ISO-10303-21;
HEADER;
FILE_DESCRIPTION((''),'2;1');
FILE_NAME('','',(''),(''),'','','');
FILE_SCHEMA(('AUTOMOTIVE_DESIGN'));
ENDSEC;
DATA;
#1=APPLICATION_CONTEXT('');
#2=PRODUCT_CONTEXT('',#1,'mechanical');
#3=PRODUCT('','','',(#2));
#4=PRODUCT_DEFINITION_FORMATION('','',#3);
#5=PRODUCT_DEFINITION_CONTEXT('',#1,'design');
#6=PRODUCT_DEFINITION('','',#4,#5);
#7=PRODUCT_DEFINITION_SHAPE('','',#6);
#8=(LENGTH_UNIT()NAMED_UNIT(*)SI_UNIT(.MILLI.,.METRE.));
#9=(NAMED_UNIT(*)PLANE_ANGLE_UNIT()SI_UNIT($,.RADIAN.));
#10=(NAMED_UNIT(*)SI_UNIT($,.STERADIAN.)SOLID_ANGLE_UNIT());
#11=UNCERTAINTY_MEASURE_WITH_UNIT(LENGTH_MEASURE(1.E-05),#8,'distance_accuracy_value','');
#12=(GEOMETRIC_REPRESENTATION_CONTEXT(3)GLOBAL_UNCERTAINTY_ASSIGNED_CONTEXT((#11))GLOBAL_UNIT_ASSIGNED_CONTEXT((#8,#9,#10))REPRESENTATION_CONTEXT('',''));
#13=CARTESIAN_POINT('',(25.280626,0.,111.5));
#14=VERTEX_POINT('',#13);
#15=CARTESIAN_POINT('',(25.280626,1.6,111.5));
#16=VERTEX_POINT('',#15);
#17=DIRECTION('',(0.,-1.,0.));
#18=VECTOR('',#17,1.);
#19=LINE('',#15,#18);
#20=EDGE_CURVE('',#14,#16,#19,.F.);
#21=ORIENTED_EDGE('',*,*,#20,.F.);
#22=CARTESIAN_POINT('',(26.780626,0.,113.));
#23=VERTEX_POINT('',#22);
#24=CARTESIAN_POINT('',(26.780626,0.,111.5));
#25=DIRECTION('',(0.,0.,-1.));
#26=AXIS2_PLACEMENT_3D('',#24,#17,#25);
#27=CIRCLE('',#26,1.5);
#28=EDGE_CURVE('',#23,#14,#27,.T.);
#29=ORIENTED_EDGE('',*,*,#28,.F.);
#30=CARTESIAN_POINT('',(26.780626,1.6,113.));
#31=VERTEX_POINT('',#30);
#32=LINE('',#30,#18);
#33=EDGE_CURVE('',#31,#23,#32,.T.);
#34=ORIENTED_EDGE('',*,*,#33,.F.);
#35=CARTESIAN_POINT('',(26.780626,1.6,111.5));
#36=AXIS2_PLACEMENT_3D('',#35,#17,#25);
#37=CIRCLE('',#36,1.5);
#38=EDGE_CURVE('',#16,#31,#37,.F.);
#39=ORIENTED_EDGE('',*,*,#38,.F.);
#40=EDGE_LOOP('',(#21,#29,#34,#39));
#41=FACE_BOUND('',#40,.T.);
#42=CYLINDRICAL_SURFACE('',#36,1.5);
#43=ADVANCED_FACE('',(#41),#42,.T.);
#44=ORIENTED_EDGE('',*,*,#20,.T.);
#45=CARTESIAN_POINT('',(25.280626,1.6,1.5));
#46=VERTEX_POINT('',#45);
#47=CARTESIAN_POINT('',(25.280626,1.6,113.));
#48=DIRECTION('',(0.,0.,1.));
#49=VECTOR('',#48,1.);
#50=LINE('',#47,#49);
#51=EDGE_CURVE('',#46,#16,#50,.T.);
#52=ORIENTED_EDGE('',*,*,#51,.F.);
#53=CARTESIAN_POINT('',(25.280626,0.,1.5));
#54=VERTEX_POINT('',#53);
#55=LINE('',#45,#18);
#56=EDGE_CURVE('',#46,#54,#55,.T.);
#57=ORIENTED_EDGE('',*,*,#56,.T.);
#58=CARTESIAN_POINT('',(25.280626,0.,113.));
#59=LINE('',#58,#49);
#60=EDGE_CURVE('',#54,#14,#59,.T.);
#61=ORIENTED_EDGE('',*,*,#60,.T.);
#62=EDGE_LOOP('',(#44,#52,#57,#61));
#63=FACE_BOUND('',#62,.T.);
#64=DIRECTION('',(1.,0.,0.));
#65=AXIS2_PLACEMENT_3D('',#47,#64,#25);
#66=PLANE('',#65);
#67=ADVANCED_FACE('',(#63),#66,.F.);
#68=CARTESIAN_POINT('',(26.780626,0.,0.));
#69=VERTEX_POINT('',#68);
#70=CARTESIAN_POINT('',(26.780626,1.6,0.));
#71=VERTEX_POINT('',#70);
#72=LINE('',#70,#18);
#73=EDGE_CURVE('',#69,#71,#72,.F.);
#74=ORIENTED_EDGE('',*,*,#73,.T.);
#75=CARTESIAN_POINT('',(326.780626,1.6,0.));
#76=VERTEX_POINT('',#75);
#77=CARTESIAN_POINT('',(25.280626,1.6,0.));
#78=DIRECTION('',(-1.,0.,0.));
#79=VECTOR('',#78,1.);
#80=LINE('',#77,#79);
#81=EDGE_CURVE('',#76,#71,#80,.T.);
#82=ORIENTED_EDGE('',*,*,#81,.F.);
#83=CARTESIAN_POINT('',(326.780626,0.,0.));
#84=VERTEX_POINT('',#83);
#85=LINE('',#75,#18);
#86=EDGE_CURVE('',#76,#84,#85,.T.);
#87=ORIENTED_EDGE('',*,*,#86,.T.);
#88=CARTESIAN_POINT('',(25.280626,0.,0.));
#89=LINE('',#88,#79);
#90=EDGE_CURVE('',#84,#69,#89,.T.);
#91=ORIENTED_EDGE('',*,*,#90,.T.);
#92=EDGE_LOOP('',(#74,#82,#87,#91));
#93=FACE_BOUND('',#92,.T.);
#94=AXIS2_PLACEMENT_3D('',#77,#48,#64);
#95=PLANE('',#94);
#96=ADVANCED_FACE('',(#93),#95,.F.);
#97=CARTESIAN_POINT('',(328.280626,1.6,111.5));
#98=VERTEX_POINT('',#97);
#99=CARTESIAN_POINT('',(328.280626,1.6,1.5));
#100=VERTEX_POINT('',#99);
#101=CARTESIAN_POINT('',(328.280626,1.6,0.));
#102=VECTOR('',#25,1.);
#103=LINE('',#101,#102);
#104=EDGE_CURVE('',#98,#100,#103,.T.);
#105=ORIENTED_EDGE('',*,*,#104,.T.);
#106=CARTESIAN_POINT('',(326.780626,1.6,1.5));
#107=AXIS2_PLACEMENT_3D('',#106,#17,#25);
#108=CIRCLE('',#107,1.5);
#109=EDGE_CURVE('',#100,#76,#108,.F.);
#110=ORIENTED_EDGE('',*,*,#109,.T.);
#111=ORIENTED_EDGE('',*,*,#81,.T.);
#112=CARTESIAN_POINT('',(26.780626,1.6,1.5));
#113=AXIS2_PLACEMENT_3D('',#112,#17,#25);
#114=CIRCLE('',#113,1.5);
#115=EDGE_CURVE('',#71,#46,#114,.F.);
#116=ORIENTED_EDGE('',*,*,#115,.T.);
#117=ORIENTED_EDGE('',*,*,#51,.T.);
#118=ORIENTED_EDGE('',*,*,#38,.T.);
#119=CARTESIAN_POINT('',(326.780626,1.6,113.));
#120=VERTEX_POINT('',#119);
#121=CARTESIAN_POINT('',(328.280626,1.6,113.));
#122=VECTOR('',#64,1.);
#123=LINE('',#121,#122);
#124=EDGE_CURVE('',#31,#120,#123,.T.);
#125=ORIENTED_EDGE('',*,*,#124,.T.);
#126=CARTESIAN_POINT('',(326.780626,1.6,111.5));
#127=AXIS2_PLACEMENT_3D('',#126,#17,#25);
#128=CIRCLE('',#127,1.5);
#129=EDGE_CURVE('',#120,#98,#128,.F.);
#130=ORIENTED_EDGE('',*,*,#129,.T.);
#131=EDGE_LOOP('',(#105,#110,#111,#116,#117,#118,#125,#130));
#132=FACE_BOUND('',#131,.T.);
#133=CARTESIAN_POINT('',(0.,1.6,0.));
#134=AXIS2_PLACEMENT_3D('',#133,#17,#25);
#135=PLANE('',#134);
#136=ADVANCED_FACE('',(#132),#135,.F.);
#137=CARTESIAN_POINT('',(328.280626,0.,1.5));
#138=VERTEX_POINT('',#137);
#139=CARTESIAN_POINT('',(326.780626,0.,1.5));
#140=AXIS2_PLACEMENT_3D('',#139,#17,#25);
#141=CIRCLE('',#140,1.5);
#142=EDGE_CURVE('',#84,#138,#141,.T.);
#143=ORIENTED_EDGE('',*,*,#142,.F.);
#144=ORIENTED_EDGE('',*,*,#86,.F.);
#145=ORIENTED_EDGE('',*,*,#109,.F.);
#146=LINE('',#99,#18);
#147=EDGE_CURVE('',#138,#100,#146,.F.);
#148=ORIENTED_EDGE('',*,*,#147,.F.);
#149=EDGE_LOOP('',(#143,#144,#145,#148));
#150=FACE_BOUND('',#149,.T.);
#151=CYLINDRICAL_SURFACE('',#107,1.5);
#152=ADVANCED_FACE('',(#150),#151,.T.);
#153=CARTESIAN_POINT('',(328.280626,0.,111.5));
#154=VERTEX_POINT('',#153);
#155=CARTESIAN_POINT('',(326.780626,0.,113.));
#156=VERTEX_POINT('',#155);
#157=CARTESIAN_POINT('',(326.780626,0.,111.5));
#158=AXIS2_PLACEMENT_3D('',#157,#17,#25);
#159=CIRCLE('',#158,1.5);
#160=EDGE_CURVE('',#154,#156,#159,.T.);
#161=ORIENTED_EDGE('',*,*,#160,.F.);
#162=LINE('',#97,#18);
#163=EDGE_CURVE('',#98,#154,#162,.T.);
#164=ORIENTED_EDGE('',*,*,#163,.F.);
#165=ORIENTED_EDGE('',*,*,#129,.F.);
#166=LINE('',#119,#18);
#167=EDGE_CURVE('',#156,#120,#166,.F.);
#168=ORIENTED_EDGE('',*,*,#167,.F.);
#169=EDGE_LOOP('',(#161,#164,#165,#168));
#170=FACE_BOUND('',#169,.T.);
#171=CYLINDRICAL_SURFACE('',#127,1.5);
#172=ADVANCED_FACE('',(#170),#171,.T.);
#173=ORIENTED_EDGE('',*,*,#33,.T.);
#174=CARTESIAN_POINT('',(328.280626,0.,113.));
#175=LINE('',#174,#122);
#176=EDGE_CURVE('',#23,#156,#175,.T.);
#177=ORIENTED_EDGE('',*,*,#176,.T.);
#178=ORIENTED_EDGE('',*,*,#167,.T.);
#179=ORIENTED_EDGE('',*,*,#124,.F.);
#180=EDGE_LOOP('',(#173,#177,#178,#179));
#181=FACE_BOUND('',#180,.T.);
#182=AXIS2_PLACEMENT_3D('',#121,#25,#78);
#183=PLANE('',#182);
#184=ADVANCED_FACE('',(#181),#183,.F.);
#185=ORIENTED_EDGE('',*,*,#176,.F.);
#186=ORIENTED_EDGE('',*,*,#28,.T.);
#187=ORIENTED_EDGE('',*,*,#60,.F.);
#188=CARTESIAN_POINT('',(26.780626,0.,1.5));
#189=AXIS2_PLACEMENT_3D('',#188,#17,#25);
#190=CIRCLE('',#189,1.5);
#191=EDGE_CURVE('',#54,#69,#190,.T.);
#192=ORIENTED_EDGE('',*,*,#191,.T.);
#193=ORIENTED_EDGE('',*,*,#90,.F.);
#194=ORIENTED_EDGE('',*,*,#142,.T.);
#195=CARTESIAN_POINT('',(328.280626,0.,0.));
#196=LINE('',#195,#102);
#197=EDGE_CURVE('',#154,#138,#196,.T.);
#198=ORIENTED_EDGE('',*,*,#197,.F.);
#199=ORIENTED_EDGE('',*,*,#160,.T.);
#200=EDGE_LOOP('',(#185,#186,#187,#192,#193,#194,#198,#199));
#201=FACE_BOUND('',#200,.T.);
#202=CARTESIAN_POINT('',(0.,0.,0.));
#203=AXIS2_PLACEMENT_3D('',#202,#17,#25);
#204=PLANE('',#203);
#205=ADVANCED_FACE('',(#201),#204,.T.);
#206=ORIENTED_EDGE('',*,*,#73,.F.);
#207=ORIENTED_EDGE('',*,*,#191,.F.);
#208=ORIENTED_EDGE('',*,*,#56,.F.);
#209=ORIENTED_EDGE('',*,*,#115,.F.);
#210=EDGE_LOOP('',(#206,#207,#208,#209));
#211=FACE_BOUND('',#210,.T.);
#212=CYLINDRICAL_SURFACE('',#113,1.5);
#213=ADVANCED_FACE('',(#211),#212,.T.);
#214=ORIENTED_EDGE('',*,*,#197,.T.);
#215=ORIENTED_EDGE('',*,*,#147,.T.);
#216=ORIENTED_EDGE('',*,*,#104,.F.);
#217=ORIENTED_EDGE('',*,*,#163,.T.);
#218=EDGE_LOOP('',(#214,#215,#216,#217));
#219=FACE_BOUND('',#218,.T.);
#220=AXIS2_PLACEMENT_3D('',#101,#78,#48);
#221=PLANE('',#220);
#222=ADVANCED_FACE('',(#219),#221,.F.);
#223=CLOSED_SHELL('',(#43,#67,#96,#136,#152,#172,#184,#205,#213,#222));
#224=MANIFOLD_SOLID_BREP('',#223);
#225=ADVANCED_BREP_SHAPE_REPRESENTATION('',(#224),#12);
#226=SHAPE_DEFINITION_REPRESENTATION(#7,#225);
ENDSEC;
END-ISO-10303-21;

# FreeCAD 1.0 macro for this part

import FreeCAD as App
import Part
import Sketcher
from FreeCAD import Vector


def edges_at(feature, points):
    """Names of the edges that pass closest to the given points."""
    edges = feature.Shape.Edges
    near = lambda p: min(range(len(edges)), key=lambda i: edges[i].distToShape(Part.Vertex(*p))[0])
    return sorted({f"Edge{near(p) + 1}" for p in points})

doc = App.newDocument("Part")
body = doc.addObject("PartDesign::Body", "Body")

# Sketch on XZ plane
sketch1 = body.newObject("Sketcher::SketchObject", "Sketch")
sketch1.AttachmentSupport = (doc.getObject("XZ_Plane"), [""])
sketch1.MapMode = "FlatFace"
sketch1.addGeometry([
    Part.LineSegment(Vector(25, 0, 0), Vector(25, 113, 0)),
    Part.LineSegment(Vector(25, 113, 0), Vector(328, 113, 0)),
    Part.LineSegment(Vector(328, 113, 0), Vector(328, 0, 0)),
    Part.LineSegment(Vector(328, 0, 0), Vector(25, 0, 0)),
], False)
sketch1.addConstraint([
    Sketcher.Constraint("Coincident", 0, 2, 1, 1),
    Sketcher.Constraint("Coincident", 1, 2, 2, 1),
    Sketcher.Constraint("Coincident", 2, 2, 3, 1),
    Sketcher.Constraint("Coincident", 3, 2, 0, 1),
    Sketcher.Constraint("Vertical", 0),
    Sketcher.Constraint("Horizontal", 1),
    Sketcher.Constraint("Vertical", 2),
    Sketcher.Constraint("Horizontal", 3),
    Sketcher.Constraint("PointOnObject", 2, 2, -1),
    Sketcher.Constraint("DistanceX", 1, 1, 1, 2, 303.0),
    Sketcher.Constraint("DistanceY", 0, 1, 0, 2, 113.0),
    Sketcher.Constraint("DistanceX", -1, 1, 0, 2, 25.280626),
])
pad1 = body.newObject("PartDesign::Pad", "Pad")
pad1.Profile = sketch1
pad1.Length = 1.6
pad1.Reversed = True
doc.recompute()

fillet = body.newObject("PartDesign::Fillet", "Fillet")
fillet.Base = (pad1, edges_at(pad1, [
    (25.281, 0.8, 0),
    (328.281, 0.8, 0),
    (328.281, 0.8, 113),
    (25.281, 0.8, 113),
]))
fillet.Radius = 1.5

doc.recompute()
